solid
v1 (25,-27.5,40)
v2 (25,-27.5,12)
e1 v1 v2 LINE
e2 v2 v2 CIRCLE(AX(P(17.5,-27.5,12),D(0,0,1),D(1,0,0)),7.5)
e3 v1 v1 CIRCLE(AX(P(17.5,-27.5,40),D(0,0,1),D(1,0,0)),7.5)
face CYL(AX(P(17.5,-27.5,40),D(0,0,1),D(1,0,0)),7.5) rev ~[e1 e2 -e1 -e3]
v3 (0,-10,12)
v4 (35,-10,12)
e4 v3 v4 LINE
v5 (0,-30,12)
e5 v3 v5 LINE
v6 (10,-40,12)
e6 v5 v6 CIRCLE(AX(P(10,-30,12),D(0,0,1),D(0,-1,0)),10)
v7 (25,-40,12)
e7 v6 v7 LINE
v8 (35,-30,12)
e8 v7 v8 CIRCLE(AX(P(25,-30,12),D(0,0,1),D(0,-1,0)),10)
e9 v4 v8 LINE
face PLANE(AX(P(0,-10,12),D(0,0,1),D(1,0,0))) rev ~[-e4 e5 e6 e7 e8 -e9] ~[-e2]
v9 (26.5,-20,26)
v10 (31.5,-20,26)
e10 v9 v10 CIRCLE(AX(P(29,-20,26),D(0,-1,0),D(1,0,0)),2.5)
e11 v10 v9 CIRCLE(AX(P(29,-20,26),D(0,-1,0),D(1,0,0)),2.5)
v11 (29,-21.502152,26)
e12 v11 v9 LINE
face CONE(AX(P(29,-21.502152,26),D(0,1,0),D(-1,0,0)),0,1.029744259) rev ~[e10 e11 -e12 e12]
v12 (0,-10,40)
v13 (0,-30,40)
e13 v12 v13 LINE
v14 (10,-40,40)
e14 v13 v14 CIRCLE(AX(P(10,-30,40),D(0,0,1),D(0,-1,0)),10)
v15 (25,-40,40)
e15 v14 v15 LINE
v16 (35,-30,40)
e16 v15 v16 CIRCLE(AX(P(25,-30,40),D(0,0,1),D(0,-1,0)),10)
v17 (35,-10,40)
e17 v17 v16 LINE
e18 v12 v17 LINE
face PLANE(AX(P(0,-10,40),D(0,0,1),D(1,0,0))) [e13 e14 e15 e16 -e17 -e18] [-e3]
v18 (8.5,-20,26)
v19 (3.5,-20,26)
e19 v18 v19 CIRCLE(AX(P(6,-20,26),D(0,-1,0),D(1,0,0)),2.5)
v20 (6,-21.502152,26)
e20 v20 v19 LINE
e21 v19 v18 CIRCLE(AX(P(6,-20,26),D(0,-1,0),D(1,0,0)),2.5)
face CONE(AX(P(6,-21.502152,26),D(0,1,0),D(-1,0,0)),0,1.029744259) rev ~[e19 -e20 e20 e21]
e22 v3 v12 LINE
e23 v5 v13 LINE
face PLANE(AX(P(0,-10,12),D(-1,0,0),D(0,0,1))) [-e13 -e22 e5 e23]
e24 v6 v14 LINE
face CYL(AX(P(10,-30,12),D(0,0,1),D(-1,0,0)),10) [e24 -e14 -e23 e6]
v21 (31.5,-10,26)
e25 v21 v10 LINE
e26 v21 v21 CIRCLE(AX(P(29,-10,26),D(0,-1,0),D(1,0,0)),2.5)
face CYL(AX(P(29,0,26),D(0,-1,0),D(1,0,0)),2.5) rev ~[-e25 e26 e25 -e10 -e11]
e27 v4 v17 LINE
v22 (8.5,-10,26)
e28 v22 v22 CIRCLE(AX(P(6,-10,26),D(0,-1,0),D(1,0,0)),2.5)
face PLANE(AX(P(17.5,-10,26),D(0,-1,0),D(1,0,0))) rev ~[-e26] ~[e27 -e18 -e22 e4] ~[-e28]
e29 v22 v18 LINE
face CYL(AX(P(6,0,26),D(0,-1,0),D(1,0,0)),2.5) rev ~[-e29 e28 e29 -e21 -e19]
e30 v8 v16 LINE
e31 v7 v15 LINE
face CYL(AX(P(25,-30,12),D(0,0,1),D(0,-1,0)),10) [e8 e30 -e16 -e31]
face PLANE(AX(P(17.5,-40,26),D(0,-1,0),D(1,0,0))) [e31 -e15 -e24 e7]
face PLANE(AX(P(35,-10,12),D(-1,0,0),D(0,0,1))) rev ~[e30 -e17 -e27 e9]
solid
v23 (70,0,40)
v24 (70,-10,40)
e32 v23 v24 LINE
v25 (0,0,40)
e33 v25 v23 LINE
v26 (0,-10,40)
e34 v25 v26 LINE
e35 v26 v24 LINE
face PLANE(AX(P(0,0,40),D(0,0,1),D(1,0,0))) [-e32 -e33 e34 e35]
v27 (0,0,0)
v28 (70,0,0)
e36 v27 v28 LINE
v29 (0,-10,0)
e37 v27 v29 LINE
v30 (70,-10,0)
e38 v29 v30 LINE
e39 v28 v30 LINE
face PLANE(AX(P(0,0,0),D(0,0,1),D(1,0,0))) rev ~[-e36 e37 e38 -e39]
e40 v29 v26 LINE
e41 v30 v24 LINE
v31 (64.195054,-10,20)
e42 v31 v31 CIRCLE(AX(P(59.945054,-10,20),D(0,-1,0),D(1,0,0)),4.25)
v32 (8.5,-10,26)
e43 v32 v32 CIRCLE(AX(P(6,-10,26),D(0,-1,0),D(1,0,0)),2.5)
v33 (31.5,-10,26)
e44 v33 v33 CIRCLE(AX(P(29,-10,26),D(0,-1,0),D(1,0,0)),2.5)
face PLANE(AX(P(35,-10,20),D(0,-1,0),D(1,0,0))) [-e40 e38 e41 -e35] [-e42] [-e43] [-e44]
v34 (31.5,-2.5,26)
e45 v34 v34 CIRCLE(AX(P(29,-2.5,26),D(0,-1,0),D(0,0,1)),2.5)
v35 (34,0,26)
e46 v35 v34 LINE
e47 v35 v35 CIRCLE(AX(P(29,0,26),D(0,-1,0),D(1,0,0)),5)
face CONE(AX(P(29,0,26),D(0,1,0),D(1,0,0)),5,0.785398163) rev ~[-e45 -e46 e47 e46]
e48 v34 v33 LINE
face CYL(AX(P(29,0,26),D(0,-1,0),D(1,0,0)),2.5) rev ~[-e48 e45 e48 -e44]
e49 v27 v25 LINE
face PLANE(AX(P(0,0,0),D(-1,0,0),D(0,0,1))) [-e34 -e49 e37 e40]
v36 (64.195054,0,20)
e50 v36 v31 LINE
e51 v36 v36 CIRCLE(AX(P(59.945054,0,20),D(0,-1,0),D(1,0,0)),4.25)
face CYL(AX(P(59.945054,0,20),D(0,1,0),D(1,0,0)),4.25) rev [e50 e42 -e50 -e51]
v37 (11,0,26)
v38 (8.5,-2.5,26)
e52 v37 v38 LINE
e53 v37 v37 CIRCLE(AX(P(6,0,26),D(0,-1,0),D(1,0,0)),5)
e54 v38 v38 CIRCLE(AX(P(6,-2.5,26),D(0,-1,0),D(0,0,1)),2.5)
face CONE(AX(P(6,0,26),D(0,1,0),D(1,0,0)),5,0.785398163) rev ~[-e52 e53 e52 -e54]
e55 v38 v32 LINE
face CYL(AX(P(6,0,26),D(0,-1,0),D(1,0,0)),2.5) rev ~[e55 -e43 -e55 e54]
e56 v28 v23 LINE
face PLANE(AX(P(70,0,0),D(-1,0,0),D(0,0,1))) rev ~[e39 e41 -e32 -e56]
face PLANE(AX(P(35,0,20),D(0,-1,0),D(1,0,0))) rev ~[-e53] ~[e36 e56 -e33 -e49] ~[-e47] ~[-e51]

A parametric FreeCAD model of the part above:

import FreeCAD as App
import Part
import Sketcher

V = App.Vector
Q = App.Units.Quantity


def edges_at(feature, points):
    """Names of the edges that pass closest to the given points."""
    edges = feature.Shape.Edges
    near = lambda p: min(range(len(edges)), key=lambda i: edges[i].distToShape(Part.Vertex(*p))[0])
    return sorted({f"Edge{near(p) + 1}" for p in points})


def add_polygon(sketch, points):
    """Adds a closed chain of lines whose ends are joined by coincident constraints."""
    first, n = sketch.GeometryCount, len(points)
    for a, b in zip(points, points[1:] + points[:1]):
        sketch.addGeometry(Part.LineSegment(App.Vector(*a, 0), App.Vector(*b, 0)), False)
    for i in range(n):
        sketch.addConstraint(Sketcher.Constraint("Coincident", first + i, 2, first + (i + 1) % n, 1))

doc = App.newDocument("Part")
body = doc.addObject("PartDesign::Body", "Body")

# Sketch on XZ plane
sketch1 = body.newObject("Sketcher::SketchObject", "Sketch")
sketch1.AttachmentSupport = (doc.getObject("XZ_Plane"), [""])
sketch1.MapMode = "FlatFace"
add_polygon(sketch1, [(0, 40), (0, 0), (70, 0), (70, 40)])  # lines 0-3
sketch1.addGeometry(Part.Circle(V(59.9, 20, 0), V(0, 0, 1), 4.2), False)  # 4
sketch1.addConstraint([
    Sketcher.Constraint("Vertical", 0),
    Sketcher.Constraint("Horizontal", 1),
    Sketcher.Constraint("Vertical", 2),
    Sketcher.Constraint("Horizontal", 3),
    Sketcher.Constraint("Coincident", 0, 2, -1, 1),
    Sketcher.Constraint("Diameter", 4, Q("8.5 mm")),
    Sketcher.Constraint("DistanceX", 1, 1, 1, 2, Q("70 mm")),
    Sketcher.Constraint("DistanceY", 0, 2, 0, 1, Q("40 mm")),
    Sketcher.Constraint("DistanceY", -1, 1, 4, 3, Q("20 mm")),
    Sketcher.Constraint("DistanceX", -1, 1, 4, 3, Q("59.945054 mm")),
])
pad1 = body.newObject("PartDesign::Pad", "Pad")
pad1.Profile = sketch1
pad1.Length = 10

# Sketch on XZ plane
sketch2 = body.newObject("Sketcher::SketchObject", "Sketch001")
sketch2.AttachmentSupport = (doc.getObject("XZ_Plane"), [""])
sketch2.MapMode = "FlatFace"
sketch2.addGeometry([
    Part.Circle(V(29, 26, 0), V(0, 0, 1), 2.5),
    Part.Circle(V(6, 26, 0), V(0, 0, 1), 2.5),
], False)
sketch2.addConstraint([
    Sketcher.Constraint("Equal", 0, 1),
    Sketcher.Constraint("Horizontal", 0, 3, 1, 3),
    Sketcher.Constraint("Diameter", 0, Q("5 mm")),
    Sketcher.Constraint("DistanceX", -1, 1, 0, 3, Q("29 mm")),
    Sketcher.Constraint("DistanceY", -1, 1, 0, 3, Q("26 mm")),
    Sketcher.Constraint("DistanceX", -1, 1, 1, 3, Q("6 mm")),
])
doc.recompute()
hole = body.newObject("PartDesign::Hole", "Hole")
hole.Profile = sketch2
hole.ThreadType = "None"
hole.Diameter = 5
hole.DepthType = "Dimension"
hole.Depth = 20
hole.DrillPoint = "Angled"
hole.DrillPointAngle = 118
hole.HoleCutType = "Countersink"
hole.HoleCutDiameter = 10
hole.HoleCutCountersinkAngle = 90
hole.Reversed = True
body2 = doc.addObject("PartDesign::Body", "Body001")

# Sketch on XZ plane
sketch3 = body2.newObject("Sketcher::SketchObject", "Sketch002")
sketch3.AttachmentSupport = (doc.getObject("XZ_Plane001"), [""])
sketch3.MapMode = "FlatFace"
sketch3.AttachmentOffset = App.Placement(V(0, 0, 10), App.Rotation())
add_polygon(sketch3, [(0, 40), (0, 12), (35, 12), (35, 40)])  # lines 0-3
sketch3.addConstraint([
    Sketcher.Constraint("Vertical", 0),
    Sketcher.Constraint("Horizontal", 1),
    Sketcher.Constraint("Vertical", 2),
    Sketcher.Constraint("Horizontal", 3),
    Sketcher.Constraint("PointOnObject", 0, 2, -2),
    Sketcher.Constraint("DistanceX", 1, 1, 1, 2, Q("35 mm")),
    Sketcher.Constraint("DistanceY", 0, 2, 0, 1, Q("28 mm")),
    Sketcher.Constraint("DistanceY", -1, 1, 0, 2, Q("12 mm")),
])
pad2 = body2.newObject("PartDesign::Pad", "Pad001")
pad2.Profile = sketch3
pad2.Length = 30

# Sketch on XY plane
sketch4 = body2.newObject("Sketcher::SketchObject", "Sketch003")
sketch4.AttachmentSupport = (doc.getObject("XY_Plane001"), [""])
sketch4.MapMode = "FlatFace"
sketch4.AttachmentOffset = App.Placement(V(0, 0, 40), App.Rotation())
sketch4.addGeometry(Part.Circle(V(18, -28, 0), V(0, 0, 1), 8), False)
sketch4.addConstraint([
    Sketcher.Constraint("Diameter", 0, Q("15 mm")),
    Sketcher.Constraint("DistanceX", -1, 1, 0, 3, Q("17.5 mm")),
    Sketcher.Constraint("DistanceY", 0, 3, -1, 1, Q("27.5 mm")),
])
pocket1 = body2.newObject("PartDesign::Pocket", "Pocket")
pocket1.Profile = sketch4
pocket1.Type = "ThroughAll"

# Sketch on XZ plane
sketch5 = body2.newObject("Sketcher::SketchObject", "Sketch004")
sketch5.AttachmentSupport = (doc.getObject("XZ_Plane001"), [""])
sketch5.MapMode = "FlatFace"
sketch5.addGeometry([
    Part.Circle(V(29, 26, 0), V(0, 0, 1), 2.5),
    Part.Circle(V(6, 26, 0), V(0, 0, 1), 2.5),
], False)
sketch5.addConstraint([
    Sketcher.Constraint("Equal", 0, 1),
    Sketcher.Constraint("Horizontal", 0, 3, 1, 3),
    Sketcher.Constraint("Diameter", 0, Q("5 mm")),
    Sketcher.Constraint("DistanceX", -1, 1, 0, 3, Q("29 mm")),
    Sketcher.Constraint("DistanceY", -1, 1, 0, 3, Q("26 mm")),
    Sketcher.Constraint("DistanceX", -1, 1, 1, 3, Q("6 mm")),
])
doc.recompute()
hole2 = body2.newObject("PartDesign::Hole", "Hole001")
hole2.Profile = sketch5
hole2.ThreadType = "None"
hole2.Diameter = 5
hole2.DepthType = "Dimension"
hole2.Depth = 20
hole2.DrillPoint = "Angled"
hole2.DrillPointAngle = 118
hole2.HoleCutType = "Countersink"
hole2.HoleCutDiameter = 10
hole2.HoleCutCountersinkAngle = 90
hole2.Reversed = True
doc.recompute()

fillet = body2.newObject("PartDesign::Fillet", "Fillet")
fillet.Base = (hole2, edges_at(hole2, [(35, -40, 26), (0, -40, 26)]))
fillet.Radius = 10

doc.recompute()
